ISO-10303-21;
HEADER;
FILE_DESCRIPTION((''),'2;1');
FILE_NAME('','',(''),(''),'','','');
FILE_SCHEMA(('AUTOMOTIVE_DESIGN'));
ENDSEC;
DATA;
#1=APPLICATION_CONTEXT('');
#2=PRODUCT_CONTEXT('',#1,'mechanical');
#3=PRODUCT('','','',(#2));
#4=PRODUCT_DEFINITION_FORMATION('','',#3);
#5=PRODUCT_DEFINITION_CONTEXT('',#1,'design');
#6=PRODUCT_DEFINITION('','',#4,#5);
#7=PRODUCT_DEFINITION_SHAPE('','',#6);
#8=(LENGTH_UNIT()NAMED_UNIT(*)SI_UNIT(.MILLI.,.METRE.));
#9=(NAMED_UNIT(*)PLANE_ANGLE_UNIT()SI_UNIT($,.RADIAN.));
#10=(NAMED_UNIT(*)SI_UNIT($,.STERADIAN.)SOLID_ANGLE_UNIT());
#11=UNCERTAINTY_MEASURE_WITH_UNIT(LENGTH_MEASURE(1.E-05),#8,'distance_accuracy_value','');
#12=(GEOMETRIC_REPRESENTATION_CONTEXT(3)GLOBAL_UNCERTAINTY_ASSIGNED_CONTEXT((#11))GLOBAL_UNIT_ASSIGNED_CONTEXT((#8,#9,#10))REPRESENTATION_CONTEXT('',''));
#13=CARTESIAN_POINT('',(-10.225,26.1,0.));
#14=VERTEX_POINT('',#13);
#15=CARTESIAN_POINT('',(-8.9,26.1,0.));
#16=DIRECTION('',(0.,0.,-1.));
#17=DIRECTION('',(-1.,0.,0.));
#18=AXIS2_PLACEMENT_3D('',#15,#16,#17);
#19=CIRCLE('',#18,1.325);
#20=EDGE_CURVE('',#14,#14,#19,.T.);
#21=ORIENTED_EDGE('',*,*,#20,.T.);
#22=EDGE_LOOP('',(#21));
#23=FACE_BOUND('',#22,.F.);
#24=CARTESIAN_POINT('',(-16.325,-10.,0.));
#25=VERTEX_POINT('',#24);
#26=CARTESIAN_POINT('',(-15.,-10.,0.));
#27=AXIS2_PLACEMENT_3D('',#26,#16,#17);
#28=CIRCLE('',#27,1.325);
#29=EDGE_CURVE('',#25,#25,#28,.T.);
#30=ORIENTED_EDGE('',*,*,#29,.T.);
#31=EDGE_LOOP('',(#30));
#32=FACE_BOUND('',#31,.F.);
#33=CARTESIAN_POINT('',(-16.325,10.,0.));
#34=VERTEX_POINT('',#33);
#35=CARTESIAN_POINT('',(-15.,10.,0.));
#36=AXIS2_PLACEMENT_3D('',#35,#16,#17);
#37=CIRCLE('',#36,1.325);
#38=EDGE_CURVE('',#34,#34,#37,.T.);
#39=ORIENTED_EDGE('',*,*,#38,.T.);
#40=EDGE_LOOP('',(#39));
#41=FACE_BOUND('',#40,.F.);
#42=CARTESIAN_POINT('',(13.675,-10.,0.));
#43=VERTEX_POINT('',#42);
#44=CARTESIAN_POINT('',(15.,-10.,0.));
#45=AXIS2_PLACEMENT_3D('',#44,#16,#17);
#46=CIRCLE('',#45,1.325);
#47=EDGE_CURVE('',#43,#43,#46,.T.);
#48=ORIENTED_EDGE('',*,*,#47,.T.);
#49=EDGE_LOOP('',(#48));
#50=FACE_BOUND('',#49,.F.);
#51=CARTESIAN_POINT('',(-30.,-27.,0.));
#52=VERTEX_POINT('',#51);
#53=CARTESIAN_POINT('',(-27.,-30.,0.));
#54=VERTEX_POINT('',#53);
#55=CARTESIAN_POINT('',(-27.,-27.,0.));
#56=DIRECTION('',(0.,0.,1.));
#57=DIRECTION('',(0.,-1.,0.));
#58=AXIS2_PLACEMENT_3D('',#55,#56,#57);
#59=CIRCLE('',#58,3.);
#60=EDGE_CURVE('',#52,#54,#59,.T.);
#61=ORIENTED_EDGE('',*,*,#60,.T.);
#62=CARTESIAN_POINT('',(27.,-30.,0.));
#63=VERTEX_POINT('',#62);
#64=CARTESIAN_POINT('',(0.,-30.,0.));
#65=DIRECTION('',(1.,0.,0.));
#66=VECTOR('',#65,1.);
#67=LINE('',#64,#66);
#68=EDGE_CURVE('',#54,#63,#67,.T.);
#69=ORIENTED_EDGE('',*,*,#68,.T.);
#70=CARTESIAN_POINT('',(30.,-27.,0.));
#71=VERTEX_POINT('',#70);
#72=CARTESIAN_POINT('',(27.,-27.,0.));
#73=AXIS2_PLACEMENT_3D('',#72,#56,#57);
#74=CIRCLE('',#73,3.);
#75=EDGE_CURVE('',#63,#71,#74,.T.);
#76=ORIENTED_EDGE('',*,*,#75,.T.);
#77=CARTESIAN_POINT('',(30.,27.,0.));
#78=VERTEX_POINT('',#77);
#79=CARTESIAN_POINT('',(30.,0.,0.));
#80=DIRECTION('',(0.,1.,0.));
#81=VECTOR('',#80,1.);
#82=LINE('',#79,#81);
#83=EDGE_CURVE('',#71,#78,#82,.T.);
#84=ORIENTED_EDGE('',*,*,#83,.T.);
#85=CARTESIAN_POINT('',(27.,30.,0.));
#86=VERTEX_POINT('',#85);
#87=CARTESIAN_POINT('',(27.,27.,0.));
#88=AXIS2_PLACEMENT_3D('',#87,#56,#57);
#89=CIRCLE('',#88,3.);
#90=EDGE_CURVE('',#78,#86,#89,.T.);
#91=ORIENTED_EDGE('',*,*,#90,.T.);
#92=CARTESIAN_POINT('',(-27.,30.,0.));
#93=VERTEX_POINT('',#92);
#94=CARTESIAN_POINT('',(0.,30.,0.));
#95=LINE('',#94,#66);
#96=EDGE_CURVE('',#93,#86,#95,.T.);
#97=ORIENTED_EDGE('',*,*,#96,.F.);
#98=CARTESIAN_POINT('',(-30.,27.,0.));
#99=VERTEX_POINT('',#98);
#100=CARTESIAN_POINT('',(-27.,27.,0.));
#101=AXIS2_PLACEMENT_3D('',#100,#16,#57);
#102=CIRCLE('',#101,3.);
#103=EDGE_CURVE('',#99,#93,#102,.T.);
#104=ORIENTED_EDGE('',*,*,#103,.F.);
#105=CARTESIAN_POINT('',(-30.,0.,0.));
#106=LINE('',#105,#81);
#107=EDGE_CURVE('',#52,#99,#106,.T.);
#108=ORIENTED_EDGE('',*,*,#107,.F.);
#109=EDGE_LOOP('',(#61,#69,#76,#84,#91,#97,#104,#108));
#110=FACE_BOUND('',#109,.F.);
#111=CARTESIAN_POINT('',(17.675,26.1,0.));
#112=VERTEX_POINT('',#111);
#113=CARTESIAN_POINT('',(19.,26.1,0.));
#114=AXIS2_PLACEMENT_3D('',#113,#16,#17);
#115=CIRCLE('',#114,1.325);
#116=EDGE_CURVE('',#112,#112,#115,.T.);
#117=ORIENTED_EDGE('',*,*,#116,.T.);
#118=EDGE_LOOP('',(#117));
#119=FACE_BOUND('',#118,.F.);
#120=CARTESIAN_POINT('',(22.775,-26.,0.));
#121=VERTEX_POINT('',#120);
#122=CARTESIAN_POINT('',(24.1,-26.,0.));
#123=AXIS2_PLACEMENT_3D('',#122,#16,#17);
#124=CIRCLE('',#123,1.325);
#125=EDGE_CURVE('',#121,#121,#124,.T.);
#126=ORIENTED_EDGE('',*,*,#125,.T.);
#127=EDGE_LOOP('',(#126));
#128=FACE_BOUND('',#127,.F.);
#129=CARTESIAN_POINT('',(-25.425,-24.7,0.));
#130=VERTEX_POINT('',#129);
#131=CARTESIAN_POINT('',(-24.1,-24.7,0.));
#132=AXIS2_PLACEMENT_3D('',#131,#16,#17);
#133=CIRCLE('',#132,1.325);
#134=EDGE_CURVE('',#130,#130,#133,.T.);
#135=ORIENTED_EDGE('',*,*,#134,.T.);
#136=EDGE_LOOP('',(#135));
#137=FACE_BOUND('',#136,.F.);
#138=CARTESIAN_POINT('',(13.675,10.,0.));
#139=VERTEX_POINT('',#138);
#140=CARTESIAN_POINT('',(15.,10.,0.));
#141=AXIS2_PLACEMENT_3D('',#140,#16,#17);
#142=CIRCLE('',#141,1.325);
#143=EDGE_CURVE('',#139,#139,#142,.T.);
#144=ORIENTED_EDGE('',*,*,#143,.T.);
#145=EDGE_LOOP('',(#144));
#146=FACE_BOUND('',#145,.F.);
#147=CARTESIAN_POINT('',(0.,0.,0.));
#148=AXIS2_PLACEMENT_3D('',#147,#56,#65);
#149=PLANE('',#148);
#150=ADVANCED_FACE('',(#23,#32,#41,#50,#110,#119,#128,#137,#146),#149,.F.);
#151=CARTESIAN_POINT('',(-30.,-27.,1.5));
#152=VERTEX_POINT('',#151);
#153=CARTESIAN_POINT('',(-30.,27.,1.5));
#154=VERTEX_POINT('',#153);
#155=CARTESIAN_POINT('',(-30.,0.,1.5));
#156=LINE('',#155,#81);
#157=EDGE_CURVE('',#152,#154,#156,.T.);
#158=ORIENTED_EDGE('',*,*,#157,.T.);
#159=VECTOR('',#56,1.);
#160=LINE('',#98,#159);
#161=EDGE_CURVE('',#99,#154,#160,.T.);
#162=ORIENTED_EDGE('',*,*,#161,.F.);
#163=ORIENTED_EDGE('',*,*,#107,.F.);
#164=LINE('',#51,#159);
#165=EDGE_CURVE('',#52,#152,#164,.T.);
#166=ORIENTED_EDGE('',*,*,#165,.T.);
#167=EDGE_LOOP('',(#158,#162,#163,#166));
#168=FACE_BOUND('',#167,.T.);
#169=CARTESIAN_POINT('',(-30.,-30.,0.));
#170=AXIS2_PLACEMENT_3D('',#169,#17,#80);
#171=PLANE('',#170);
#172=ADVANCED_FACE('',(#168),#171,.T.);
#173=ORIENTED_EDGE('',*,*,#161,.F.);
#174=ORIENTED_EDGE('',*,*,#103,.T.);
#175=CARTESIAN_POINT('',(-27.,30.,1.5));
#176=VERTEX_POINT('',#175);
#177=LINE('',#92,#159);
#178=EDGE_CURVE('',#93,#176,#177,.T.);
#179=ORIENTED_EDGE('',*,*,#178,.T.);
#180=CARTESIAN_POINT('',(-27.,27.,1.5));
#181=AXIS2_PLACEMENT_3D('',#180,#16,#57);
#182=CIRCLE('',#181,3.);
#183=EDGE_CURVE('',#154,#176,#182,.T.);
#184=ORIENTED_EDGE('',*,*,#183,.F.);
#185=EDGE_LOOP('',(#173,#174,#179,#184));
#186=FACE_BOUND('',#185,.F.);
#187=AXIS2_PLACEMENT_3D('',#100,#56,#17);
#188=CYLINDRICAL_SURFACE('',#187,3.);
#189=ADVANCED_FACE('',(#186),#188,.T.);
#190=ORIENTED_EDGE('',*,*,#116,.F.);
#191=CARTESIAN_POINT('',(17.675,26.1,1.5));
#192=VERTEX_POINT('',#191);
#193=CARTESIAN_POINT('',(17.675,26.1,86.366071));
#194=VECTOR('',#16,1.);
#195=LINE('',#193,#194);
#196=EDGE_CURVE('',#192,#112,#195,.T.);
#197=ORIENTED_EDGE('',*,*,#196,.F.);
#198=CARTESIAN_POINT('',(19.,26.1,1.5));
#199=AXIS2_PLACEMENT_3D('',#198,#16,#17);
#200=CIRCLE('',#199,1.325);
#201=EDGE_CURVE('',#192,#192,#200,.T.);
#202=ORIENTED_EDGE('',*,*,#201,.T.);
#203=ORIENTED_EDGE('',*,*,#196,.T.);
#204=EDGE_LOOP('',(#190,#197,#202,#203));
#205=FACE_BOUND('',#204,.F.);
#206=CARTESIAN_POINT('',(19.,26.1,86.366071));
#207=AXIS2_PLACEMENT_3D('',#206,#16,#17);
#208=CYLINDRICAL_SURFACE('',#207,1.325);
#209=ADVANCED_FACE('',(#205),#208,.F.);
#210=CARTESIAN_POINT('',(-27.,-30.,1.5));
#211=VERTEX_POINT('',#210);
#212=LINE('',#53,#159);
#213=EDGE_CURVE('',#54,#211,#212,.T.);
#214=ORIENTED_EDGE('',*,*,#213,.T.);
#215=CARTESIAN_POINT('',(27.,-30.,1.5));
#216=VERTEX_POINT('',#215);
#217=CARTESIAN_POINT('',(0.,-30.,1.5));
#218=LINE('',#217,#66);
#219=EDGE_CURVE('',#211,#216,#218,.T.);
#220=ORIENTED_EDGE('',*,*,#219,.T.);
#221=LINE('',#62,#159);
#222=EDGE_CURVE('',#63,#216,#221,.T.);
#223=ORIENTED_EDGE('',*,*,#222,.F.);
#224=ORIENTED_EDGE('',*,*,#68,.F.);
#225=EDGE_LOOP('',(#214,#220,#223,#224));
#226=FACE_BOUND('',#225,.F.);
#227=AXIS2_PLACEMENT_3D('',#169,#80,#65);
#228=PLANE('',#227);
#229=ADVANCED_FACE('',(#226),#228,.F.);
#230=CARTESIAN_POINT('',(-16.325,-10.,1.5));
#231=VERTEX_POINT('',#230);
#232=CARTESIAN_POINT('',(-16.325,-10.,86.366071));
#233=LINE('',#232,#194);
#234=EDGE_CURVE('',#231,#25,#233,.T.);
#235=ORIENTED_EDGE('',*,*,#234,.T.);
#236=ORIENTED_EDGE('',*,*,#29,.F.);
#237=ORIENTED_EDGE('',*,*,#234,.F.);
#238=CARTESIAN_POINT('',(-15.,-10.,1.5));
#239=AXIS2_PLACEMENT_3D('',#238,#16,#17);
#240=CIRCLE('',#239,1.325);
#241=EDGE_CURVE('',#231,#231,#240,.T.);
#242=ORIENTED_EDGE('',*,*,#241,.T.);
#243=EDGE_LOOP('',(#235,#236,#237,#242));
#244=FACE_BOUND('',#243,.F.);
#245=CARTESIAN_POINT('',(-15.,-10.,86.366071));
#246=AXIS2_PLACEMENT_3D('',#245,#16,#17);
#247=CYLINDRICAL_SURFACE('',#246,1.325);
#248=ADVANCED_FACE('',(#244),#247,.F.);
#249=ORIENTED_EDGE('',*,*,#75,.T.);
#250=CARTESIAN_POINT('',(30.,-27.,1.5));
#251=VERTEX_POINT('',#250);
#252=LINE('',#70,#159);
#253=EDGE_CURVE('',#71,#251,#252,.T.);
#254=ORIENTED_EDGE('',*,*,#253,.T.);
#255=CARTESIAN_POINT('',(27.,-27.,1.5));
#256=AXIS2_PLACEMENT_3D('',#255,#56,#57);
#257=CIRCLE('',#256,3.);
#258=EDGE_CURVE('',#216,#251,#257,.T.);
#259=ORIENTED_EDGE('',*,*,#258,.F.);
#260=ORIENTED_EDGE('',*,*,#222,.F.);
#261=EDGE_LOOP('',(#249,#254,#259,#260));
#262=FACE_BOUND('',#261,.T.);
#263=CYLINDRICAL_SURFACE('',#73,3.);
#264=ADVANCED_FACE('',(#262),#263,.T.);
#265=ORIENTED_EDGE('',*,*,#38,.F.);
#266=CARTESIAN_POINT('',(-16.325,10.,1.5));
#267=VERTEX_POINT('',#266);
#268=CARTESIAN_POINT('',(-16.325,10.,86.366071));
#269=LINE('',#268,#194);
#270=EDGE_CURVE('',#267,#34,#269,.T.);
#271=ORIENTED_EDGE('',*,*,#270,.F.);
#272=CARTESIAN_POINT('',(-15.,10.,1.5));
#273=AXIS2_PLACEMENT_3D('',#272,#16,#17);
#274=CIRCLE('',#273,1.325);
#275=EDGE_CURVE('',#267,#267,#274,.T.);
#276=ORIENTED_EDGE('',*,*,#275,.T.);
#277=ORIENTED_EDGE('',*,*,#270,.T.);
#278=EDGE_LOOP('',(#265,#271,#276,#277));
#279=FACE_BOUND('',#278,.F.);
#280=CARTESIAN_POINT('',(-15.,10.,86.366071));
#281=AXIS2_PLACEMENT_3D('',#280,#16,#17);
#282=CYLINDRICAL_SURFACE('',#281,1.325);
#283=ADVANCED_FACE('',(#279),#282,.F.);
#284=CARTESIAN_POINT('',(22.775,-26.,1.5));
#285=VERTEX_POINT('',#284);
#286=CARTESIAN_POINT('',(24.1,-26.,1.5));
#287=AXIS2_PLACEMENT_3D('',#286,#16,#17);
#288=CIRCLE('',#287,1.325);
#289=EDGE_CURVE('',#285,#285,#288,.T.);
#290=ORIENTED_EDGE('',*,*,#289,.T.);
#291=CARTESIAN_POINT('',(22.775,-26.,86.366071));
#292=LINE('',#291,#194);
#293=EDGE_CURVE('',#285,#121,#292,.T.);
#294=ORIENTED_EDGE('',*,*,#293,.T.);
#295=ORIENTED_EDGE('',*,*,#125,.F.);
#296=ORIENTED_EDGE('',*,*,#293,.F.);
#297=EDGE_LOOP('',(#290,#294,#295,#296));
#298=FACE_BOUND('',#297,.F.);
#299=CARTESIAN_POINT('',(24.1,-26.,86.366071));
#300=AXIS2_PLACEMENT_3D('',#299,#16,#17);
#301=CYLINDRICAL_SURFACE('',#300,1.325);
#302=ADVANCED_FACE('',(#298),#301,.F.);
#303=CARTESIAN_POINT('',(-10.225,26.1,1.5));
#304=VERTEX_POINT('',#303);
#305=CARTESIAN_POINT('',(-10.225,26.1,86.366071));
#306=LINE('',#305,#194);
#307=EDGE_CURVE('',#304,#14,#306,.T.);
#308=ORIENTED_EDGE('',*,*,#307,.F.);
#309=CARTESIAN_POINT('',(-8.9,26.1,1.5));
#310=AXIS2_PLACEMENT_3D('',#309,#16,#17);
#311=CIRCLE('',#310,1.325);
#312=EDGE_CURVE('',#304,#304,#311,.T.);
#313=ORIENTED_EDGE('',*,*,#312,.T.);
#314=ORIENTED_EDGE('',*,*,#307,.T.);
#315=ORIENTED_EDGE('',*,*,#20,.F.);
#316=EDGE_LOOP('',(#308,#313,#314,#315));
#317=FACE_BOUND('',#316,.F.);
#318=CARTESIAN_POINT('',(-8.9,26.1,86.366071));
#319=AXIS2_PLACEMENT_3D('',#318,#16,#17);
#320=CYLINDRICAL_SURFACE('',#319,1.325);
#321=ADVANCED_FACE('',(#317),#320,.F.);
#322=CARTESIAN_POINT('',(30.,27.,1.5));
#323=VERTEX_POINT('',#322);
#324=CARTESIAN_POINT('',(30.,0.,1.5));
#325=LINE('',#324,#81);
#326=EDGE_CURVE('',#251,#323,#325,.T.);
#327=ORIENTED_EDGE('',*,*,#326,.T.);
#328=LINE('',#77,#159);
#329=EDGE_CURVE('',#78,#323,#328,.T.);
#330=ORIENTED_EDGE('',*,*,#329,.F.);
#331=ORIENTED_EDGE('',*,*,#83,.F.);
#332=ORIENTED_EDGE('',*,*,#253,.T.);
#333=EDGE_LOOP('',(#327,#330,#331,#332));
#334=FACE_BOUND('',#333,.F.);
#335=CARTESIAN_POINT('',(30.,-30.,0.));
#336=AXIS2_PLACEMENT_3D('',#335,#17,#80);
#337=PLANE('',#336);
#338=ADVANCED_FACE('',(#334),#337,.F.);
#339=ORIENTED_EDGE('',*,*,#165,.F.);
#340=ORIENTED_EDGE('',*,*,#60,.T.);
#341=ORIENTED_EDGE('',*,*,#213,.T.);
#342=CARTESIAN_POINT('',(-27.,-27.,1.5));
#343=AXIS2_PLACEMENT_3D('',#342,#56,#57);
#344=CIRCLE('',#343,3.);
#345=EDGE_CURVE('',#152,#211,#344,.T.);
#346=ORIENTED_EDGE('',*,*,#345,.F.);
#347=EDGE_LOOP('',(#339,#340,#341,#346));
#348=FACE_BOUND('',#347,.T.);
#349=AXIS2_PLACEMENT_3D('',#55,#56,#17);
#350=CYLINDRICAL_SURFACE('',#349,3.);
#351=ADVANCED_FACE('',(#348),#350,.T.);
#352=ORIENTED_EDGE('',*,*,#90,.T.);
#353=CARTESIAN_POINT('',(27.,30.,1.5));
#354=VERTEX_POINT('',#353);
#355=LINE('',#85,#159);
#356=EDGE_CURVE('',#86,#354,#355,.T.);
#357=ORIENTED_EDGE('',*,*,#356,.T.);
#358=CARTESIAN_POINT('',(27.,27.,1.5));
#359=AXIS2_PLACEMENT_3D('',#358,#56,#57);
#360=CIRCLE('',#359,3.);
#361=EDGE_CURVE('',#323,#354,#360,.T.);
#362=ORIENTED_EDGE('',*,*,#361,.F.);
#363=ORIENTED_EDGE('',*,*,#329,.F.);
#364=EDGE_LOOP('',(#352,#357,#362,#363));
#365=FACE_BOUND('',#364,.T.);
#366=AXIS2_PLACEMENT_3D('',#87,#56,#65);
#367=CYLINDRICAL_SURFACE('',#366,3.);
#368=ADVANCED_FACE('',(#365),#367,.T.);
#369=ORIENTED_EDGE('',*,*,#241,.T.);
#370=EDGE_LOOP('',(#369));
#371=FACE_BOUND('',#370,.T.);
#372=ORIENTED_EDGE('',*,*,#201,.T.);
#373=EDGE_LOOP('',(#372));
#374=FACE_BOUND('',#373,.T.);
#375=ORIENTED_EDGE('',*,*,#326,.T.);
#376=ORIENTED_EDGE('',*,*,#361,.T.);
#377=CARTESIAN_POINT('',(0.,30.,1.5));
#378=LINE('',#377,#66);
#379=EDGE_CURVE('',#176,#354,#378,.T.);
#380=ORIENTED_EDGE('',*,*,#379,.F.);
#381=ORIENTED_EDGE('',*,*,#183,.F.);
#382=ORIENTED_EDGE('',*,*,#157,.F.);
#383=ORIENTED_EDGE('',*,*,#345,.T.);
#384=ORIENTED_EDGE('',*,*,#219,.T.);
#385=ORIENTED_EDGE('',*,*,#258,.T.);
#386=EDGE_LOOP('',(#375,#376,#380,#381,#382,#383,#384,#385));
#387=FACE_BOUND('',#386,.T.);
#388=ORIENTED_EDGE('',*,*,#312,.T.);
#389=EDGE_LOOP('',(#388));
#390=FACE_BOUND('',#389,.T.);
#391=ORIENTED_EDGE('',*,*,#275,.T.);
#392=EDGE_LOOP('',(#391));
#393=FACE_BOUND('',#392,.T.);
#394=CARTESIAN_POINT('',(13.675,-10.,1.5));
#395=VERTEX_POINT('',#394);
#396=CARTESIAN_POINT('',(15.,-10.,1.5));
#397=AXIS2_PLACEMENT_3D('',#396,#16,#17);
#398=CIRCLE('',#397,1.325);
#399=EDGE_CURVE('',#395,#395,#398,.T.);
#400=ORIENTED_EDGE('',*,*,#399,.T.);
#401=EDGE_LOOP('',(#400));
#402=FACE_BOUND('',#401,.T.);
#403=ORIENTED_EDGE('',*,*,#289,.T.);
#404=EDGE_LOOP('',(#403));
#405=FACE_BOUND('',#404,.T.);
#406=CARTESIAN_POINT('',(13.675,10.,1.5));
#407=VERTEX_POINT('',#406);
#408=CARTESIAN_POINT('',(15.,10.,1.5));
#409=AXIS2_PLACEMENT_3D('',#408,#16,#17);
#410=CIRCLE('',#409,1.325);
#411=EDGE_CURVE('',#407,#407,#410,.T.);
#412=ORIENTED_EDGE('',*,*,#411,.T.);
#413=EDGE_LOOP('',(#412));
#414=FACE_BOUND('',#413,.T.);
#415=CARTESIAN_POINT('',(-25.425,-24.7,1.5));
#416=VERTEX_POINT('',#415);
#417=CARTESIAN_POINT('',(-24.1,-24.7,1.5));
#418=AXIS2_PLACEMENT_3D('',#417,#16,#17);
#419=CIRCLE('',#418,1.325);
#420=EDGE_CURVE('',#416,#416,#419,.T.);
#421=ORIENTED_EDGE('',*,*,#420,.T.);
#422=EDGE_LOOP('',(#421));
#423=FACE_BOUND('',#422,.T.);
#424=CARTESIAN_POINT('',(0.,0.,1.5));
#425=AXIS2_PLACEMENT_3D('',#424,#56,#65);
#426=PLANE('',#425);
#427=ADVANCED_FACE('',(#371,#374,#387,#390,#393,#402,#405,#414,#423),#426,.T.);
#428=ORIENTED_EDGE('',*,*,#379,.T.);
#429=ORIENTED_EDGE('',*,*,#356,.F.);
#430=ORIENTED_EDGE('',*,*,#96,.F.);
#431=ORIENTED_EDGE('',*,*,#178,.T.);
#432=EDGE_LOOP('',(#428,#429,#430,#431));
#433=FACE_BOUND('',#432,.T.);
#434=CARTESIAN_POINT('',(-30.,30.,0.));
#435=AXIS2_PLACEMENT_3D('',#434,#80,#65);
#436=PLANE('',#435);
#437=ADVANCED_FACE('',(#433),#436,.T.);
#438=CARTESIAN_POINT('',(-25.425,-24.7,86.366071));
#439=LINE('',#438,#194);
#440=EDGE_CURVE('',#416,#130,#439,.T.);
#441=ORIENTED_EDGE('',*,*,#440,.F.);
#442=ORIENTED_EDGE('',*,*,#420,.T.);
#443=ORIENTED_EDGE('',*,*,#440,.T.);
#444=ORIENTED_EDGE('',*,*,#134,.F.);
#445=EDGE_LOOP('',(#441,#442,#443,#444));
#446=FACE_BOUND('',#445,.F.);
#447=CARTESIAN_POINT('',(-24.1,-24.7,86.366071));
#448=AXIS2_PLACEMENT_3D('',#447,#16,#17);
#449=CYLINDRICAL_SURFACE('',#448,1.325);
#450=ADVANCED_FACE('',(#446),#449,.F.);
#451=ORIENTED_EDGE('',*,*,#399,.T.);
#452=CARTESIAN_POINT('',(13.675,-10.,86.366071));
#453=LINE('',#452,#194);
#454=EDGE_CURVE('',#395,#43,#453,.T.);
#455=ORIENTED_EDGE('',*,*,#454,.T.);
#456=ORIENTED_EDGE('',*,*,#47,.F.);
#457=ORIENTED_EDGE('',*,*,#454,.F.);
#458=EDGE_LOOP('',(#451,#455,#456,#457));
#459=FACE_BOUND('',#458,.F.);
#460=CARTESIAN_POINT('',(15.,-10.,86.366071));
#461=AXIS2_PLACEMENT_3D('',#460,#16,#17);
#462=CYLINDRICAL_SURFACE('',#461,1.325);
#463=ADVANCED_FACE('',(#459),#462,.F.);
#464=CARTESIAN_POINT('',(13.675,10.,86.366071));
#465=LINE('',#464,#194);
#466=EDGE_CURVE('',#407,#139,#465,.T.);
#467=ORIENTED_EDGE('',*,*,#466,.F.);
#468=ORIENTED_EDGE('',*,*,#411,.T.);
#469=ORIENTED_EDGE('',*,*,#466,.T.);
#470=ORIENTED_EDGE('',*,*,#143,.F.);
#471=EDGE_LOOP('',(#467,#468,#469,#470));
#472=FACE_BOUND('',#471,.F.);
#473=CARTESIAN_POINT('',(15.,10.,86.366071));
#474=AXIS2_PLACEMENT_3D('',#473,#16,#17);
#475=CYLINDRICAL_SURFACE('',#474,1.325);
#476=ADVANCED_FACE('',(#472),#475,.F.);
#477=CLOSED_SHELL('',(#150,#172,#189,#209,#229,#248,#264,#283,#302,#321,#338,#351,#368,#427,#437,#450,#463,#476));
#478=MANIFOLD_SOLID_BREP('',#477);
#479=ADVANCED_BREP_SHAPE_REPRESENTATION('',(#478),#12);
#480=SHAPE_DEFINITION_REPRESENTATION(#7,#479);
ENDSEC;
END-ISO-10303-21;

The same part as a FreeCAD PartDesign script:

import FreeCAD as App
import Part
import Sketcher

V = App.Vector


def edges_at(feature, points):
    """Names of the edges that pass closest to the given points."""
    edges = feature.Shape.Edges
    near = lambda p: min(range(len(edges)), key=lambda i: edges[i].distToShape(Part.Vertex(*p))[0])
    return sorted({f"Edge{near(p) + 1}" for p in points})

doc = App.newDocument("Part")
body = doc.addObject("PartDesign::Body", "Body")

sketch1 = body.newObject("Sketcher::SketchObject", "Sketch")
sketch1.AttachmentSupport = (doc.getObject("XY_Plane"), [""])
sketch1.MapMode = "FlatFace"
sketch1.addGeometry([
    Part.LineSegment(V(-30, 30, 0), V(-30, -30, 0)),
    Part.LineSegment(V(-30, -30, 0), V(30, -30, 0)),
    Part.LineSegment(V(30, -30, 0), V(30, 30, 0)),
    Part.LineSegment(V(30, 30, 0), V(-30, 30, 0)),
], False)
sketch1.addConstraint([
    Sketcher.Constraint("Coincident", 0, 2, 1, 1),
    Sketcher.Constraint("Coincident", 1, 2, 2, 1),
    Sketcher.Constraint("Coincident", 2, 2, 3, 1),
    Sketcher.Constraint("Coincident", 3, 2, 0, 1),
    Sketcher.Constraint("Vertical", 0),
    Sketcher.Constraint("Horizontal", 1),
    Sketcher.Constraint("Vertical", 2),
    Sketcher.Constraint("Horizontal", 3),
    Sketcher.Constraint("Symmetric", 0, 2, 2, 2, -1, 1),
    Sketcher.Constraint("Equal", 3, 0),
    Sketcher.Constraint("DistanceX", 1, 1, 1, 2, 60.0),
])
pad1 = body.newObject("PartDesign::Pad", "Pad")
pad1.Profile = sketch1
pad1.Length = 1.5
doc.recompute()

fillet = body.newObject("PartDesign::Fillet", "Fillet")
fillet.Base = (pad1, edges_at(pad1, [
    (-30, -30, 0.75),
    (30, -30, 0.75),
    (30, 30, 0.75),
    (-30, 30, 0.75),
]))
fillet.Radius = 3

sketch2 = body.newObject("Sketcher::SketchObject", "Sketch001")
sketch2.AttachmentSupport = (doc.getObject("XY_Plane"), [""])
sketch2.MapMode = "FlatFace"
sketch2.AttachmentOffset = App.Placement(V(0, 0, 1.5), App.Rotation())
sketch2.addGeometry([
    Part.Circle(V(-15, 10, 0), V(0, 0, 1), 1.3),
    Part.Circle(V(15, 10, 0), V(0, 0, 1), 1.3),
    Part.Circle(V(15, -10, 0), V(0, 0, 1), 1.3),
    Part.Circle(V(-15, -10, 0), V(0, 0, 1), 1.3),
    Part.Circle(V(-8.9, 26.1, 0), V(0, 0, 1), 1.3),
    Part.Circle(V(19, 26.1, 0), V(0, 0, 1), 1.3),
    Part.Circle(V(24.1, -26, 0), V(0, 0, 1), 1.3),
    Part.Circle(V(-24.1, -24.7, 0), V(0, 0, 1), 1.3),
], False)
sketch2.addConstraint([
    Sketcher.Constraint("Equal", 0, 1),
    Sketcher.Constraint("Equal", 1, 2),
    Sketcher.Constraint("Equal", 2, 3),
    Sketcher.Constraint("Equal", 3, 4),
    Sketcher.Constraint("Equal", 4, 5),
    Sketcher.Constraint("Equal", 5, 6),
    Sketcher.Constraint("Equal", 6, 7),
    Sketcher.Constraint("Symmetric", 0, 3, 2, 3, -1, 1),
    Sketcher.Constraint("Symmetric", 1, 3, 3, 3, -1, 1),
    Sketcher.Constraint("Symmetric", 0, 3, 1, 3, -2),
    Sketcher.Constraint("Horizontal", 4, 3, 5, 3),
    Sketcher.Constraint("Diameter", 0, 2.65),
    Sketcher.Constraint("DistanceX", 0, 3, -1, 1, 15.0),
    Sketcher.Constraint("DistanceY", -1, 1, 0, 3, 10.0),
    Sketcher.Constraint("DistanceX", -1, 1, 5, 3, 19.0),
    Sketcher.Constraint("DistanceY", 6, 3, -1, 1, 26.0),
    Sketcher.Constraint("DistanceX", 4, 3, -1, 1, 8.9),
    Sketcher.Constraint("DistanceY", -1, 1, 4, 3, 26.1),
    Sketcher.Constraint("DistanceX", -1, 1, 6, 3, 24.1),
    Sketcher.Constraint("DistanceX", 7, 3, -1, 1, 24.1),
    Sketcher.Constraint("DistanceY", 7, 3, -1, 1, 24.7),
])
doc.recompute()
hole = body.newObject("PartDesign::Hole", "Hole")
hole.Profile = sketch2
hole.ThreadType = "None"
hole.Diameter = 2.65
hole.DepthType = "ThroughAll"

doc.recompute()
